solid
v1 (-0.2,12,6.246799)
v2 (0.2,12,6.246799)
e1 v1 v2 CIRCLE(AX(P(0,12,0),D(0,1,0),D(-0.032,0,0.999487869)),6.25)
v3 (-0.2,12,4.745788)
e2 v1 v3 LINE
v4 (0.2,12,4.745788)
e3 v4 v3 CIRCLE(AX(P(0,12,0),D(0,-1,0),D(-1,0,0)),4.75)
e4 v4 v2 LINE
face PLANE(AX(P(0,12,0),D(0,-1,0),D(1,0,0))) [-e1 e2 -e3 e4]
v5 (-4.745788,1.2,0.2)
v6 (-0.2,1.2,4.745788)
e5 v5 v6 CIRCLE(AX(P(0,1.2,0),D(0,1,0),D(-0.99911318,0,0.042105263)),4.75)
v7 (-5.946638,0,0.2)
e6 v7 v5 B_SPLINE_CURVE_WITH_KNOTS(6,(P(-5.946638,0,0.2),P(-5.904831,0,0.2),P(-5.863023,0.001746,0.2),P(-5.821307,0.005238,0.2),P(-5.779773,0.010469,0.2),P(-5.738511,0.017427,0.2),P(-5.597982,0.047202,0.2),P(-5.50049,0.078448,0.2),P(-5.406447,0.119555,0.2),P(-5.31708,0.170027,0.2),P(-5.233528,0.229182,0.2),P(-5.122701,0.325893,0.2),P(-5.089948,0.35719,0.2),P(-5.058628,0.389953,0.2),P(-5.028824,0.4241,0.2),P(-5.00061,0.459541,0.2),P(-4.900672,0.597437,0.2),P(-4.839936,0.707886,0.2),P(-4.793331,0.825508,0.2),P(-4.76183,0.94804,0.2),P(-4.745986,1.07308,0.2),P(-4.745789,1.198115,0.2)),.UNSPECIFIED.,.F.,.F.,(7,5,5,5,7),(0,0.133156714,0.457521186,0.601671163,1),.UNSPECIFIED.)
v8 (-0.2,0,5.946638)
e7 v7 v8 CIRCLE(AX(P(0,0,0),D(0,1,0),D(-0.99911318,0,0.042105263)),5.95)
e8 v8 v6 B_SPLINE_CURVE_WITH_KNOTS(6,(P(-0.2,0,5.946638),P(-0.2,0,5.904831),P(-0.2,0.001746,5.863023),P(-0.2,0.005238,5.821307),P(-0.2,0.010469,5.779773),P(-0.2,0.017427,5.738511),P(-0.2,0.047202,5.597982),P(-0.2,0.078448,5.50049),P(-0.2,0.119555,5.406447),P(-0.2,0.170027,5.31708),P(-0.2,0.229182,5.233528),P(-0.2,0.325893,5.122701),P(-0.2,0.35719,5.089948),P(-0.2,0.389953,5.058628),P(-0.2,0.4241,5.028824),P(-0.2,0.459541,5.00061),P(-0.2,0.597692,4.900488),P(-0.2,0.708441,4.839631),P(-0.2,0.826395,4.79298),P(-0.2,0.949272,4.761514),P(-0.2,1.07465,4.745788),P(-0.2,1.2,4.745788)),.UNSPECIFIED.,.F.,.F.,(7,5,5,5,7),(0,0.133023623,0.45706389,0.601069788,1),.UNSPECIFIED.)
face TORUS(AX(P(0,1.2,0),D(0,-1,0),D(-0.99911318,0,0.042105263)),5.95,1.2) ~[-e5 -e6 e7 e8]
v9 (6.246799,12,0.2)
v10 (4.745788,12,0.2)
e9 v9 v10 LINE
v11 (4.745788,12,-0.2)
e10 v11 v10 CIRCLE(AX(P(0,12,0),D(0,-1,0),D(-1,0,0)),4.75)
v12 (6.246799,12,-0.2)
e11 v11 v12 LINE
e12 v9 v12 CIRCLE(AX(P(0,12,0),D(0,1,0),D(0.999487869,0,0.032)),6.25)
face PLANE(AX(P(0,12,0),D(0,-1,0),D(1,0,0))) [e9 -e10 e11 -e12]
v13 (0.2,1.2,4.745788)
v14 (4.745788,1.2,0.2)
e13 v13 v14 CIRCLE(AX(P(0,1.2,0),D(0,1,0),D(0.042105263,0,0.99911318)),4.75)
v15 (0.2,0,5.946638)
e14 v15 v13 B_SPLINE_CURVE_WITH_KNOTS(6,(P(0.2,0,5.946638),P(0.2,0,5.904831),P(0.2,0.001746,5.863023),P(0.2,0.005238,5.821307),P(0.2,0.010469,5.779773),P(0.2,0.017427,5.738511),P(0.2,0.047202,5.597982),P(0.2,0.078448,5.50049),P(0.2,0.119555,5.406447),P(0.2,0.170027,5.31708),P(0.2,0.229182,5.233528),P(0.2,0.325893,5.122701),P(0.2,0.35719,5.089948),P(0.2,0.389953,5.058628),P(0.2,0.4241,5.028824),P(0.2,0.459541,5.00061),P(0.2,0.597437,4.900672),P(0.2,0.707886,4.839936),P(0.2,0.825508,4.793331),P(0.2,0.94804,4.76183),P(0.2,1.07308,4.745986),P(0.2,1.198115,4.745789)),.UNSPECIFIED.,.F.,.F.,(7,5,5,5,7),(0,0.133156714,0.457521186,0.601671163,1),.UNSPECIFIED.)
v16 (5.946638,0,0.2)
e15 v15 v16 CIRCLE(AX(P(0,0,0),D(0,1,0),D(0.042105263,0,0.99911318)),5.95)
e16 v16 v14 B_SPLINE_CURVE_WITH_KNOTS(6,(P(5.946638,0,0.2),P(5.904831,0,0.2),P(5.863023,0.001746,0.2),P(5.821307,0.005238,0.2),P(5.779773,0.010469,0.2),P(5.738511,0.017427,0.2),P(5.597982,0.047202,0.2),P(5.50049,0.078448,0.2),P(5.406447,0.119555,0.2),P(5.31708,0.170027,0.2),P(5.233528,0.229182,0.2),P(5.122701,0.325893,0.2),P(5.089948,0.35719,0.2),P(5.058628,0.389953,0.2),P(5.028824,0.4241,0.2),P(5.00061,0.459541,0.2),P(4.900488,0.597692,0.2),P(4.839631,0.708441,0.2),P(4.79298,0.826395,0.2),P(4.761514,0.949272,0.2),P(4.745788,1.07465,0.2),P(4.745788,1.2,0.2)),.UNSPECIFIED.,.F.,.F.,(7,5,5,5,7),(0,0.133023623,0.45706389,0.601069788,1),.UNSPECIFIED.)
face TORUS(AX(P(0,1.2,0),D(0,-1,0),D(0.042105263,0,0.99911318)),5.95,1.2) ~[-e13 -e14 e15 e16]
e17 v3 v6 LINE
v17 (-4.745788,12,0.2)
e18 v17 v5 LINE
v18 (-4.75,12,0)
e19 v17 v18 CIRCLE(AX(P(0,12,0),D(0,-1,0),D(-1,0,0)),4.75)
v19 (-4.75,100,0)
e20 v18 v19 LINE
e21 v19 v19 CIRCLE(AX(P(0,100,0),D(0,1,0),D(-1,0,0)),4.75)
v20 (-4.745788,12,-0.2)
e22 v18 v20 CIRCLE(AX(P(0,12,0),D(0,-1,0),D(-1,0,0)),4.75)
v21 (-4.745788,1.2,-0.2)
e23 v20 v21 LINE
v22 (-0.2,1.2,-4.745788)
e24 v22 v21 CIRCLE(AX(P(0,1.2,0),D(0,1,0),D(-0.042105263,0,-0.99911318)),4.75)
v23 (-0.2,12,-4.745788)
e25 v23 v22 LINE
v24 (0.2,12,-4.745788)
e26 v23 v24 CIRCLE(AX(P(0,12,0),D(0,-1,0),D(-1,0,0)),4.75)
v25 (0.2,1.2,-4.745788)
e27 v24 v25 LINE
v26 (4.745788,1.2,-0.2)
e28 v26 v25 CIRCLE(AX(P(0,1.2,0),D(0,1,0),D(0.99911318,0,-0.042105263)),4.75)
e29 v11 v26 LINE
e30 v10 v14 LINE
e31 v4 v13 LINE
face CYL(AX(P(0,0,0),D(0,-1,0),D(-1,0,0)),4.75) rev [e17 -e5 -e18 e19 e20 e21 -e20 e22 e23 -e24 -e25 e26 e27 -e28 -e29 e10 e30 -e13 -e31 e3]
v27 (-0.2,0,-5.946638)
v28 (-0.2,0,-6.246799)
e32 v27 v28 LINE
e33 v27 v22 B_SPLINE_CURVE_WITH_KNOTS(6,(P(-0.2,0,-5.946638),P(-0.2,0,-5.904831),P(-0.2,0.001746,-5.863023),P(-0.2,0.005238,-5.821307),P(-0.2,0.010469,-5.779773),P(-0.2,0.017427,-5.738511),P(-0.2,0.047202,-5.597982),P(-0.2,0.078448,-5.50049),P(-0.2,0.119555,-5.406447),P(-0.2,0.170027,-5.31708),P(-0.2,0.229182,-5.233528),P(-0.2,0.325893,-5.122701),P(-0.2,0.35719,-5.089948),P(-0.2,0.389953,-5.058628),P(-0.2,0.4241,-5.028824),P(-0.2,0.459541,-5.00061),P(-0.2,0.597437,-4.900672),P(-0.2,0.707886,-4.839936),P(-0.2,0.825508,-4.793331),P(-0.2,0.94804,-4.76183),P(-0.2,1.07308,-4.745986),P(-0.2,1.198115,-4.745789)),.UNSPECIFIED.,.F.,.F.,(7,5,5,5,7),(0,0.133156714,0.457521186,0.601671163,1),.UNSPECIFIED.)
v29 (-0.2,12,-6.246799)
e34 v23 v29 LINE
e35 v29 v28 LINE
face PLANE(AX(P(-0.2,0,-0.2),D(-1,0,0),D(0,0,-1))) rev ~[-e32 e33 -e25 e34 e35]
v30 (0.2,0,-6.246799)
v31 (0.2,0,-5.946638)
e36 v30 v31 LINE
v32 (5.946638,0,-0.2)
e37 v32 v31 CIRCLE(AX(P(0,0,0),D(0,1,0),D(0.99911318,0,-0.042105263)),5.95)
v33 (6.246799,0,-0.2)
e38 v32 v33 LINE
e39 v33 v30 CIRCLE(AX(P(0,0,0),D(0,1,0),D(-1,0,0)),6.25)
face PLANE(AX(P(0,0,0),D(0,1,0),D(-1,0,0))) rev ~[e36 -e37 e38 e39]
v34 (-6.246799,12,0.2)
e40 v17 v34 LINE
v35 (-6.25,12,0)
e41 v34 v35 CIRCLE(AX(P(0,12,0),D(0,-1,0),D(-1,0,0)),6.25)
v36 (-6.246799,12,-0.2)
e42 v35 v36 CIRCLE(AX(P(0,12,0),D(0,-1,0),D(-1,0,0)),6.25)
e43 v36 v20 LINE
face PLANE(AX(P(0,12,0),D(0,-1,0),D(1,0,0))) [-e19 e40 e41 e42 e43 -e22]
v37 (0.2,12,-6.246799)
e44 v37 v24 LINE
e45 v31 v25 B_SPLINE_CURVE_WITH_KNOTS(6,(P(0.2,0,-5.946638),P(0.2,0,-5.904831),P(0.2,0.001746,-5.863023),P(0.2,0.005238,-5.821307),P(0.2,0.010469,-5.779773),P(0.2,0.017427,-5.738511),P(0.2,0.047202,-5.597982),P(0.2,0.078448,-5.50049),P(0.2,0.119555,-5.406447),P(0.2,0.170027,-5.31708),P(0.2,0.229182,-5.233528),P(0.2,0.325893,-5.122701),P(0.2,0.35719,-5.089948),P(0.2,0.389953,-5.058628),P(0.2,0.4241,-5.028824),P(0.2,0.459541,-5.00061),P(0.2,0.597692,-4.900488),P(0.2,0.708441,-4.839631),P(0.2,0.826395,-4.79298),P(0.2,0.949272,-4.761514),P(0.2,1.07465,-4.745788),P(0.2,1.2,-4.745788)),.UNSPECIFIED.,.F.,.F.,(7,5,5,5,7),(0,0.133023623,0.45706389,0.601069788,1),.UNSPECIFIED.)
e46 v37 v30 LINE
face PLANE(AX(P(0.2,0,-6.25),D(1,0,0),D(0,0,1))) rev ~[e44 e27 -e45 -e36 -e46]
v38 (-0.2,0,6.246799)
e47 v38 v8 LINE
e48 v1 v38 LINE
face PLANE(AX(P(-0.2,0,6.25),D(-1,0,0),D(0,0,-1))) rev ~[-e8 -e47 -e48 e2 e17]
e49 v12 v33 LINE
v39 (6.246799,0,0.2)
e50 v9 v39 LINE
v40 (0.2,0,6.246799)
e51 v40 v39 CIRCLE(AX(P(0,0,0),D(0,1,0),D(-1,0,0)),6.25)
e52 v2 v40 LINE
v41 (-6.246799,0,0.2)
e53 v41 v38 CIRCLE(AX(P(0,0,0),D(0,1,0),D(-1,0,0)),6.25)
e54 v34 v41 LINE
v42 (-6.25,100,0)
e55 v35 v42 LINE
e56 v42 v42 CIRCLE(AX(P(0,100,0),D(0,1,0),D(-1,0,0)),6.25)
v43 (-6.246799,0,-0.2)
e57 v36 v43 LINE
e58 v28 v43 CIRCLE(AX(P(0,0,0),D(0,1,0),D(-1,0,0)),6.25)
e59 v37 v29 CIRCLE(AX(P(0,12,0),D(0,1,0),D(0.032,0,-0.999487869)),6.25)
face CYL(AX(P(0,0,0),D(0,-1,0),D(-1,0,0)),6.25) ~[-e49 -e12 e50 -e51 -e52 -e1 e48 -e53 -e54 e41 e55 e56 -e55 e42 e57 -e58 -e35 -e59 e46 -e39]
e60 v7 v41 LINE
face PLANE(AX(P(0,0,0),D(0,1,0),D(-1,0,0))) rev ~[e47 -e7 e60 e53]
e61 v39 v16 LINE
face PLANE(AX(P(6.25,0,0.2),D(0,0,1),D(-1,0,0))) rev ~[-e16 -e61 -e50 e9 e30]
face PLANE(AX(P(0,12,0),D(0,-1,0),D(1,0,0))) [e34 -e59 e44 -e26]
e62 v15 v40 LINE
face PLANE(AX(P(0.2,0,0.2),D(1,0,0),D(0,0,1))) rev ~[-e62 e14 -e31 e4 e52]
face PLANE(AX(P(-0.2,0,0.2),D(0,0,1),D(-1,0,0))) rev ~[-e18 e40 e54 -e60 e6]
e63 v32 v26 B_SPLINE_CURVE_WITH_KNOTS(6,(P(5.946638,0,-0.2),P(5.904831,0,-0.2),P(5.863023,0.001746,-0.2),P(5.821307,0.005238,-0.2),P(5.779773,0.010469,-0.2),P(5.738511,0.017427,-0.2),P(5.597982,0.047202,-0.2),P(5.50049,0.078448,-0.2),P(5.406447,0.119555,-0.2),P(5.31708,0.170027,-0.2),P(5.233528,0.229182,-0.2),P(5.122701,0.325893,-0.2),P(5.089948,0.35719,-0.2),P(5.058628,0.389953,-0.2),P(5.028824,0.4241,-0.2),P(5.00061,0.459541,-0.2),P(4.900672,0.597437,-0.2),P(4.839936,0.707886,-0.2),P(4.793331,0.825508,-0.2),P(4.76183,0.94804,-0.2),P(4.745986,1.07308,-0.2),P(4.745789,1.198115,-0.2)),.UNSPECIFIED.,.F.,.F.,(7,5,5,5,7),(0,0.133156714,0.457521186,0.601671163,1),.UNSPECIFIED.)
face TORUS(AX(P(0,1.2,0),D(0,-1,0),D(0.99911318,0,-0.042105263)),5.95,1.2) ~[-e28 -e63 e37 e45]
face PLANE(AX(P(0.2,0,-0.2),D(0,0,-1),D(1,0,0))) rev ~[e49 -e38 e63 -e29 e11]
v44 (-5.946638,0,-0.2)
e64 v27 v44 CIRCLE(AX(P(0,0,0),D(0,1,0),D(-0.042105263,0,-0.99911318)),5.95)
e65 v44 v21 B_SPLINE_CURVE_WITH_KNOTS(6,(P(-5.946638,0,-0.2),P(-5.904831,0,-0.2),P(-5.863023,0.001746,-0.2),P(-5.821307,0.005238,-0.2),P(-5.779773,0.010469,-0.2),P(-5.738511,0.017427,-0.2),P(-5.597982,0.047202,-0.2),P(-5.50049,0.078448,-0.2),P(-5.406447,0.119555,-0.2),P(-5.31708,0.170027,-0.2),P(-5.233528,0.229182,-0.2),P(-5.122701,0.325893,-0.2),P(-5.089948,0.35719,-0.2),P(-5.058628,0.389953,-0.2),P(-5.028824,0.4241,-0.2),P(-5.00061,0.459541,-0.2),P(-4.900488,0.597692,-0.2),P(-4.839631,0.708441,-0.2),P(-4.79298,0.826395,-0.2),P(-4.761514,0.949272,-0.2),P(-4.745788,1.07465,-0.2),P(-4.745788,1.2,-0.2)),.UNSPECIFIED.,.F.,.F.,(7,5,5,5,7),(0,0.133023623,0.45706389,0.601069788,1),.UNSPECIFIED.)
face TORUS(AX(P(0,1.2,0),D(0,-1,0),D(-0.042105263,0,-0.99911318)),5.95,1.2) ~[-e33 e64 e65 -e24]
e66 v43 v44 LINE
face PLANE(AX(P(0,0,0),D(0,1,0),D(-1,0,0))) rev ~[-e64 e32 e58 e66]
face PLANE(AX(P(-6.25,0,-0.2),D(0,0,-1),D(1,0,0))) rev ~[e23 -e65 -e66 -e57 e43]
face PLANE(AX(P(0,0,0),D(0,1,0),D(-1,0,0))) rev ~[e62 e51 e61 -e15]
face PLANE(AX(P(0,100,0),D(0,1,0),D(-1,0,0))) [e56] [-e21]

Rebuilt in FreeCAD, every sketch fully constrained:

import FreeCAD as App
import Part
import Sketcher
from FreeCAD import Vector


def edges_at(feature, points):
    """Names of the edges that pass closest to the given points."""
    edges = feature.Shape.Edges
    near = lambda p: min(range(len(edges)), key=lambda i: edges[i].distToShape(Part.Vertex(*p))[0])
    return sorted({f"Edge{near(p) + 1}" for p in points})


def add_polygon(sketch, points):
    """Adds a closed chain of lines whose ends are joined by coincident constraints."""
    first, n = sketch.GeometryCount, len(points)
    for a, b in zip(points, points[1:] + points[:1]):
        sketch.addGeometry(Part.LineSegment(App.Vector(*a, 0), App.Vector(*b, 0)), False)
    for i in range(n):
        sketch.addConstraint(Sketcher.Constraint("Coincident", first + i, 2, first + (i + 1) % n, 1))

doc = App.newDocument("Part")
body = doc.addObject("PartDesign::Body", "Body")

sketch1 = body.newObject("Sketcher::SketchObject", "Sketch")
sketch1.AttachmentSupport = (doc.getObject("XZ_Plane"), [""])
sketch1.MapMode = "FlatFace"
sketch1.addGeometry(Part.Circle(Vector(0, 0, 0), Vector(0, 0, 1), 6.2), False)
sketch1.addGeometry(Part.Circle(Vector(0, 0, 0), Vector(0, 0, 1), 4.8), False)
sketch1.addConstraint(Sketcher.Constraint("Coincident", 0, 3, -1, 1))
sketch1.addConstraint(Sketcher.Constraint("Coincident", 1, 3, -1, 1))
sketch1.addConstraint(Sketcher.Constraint("Diameter", 1, 9.5))
sketch1.addConstraint(Sketcher.Constraint("Diameter", 0, 12.5))
pad1 = body.newObject("PartDesign::Pad", "Pad")
pad1.Profile = sketch1
pad1.Length = 100
pad1.Reversed = True

sketch2 = body.newObject("Sketcher::SketchObject", "Sketch001")
sketch2.AttachmentSupport = (doc.getObject("XZ_Plane"), [""])
sketch2.MapMode = "FlatFace"
add_polygon(sketch2, [(-6.25, 0.2), (-6.25, -0.2), (-0.2, -0.2), (-0.2, -6.25), (0.2, -6.25), (0.2, -0.2), (6.25, -0.2), (6.25, 0.2), (0.2, 0.2), (0.2, 6.25), (-0.2, 6.25), (-0.2, 0.2)])
sketch2.addConstraint(Sketcher.Constraint("Vertical", 0))
sketch2.addConstraint(Sketcher.Constraint("Horizontal", 1))
sketch2.addConstraint(Sketcher.Constraint("Vertical", 2))
sketch2.addConstraint(Sketcher.Constraint("Horizontal", 3))
sketch2.addConstraint(Sketcher.Constraint("Vertical", 4))
sketch2.addConstraint(Sketcher.Constraint("Horizontal", 5))
sketch2.addConstraint(Sketcher.Constraint("Vertical", 6))
sketch2.addConstraint(Sketcher.Constraint("Horizontal", 7))
sketch2.addConstraint(Sketcher.Constraint("Vertical", 8))
sketch2.addConstraint(Sketcher.Constraint("Horizontal", 9))
sketch2.addConstraint(Sketcher.Constraint("Vertical", 10))
sketch2.addConstraint(Sketcher.Constraint("Horizontal", 11))
sketch2.addConstraint(Sketcher.Constraint("Symmetric", 0, 2, 6, 2, -1, 1))
sketch2.addConstraint(Sketcher.Constraint("Symmetric", 2, 2, 8, 2, -1, 1))
sketch2.addConstraint(Sketcher.Constraint("Symmetric", 4, 2, 10, 2, -1, 1))
sketch2.addConstraint(Sketcher.Constraint("Symmetric", 1, 2, 4, 2, -2))
sketch2.addConstraint(Sketcher.Constraint("Equal", 9, 0))
sketch2.addConstraint(Sketcher.Constraint("Equal", 11, 2))
sketch2.addConstraint(Sketcher.Constraint("DistanceX", 3, 1, 3, 2, 0.4))
sketch2.addConstraint(Sketcher.Constraint("DistanceX", 0, 2, 5, 2, 12.5))
pocket1 = body.newObject("PartDesign::Pocket", "Pocket")
pocket1.Profile = sketch2
pocket1.Length = 12
doc.recompute()

fillet = body.newObject("PartDesign::Fillet", "Fillet")
fillet.Base = (pocket1, edges_at(pocket1, [
    (-3.359, 0, -3.359),
    (3.359, 0, -3.359),
    (3.359, 0, 3.359),
    (-3.359, 0, 3.359),
]))
fillet.Radius = 1.2

doc.recompute()
